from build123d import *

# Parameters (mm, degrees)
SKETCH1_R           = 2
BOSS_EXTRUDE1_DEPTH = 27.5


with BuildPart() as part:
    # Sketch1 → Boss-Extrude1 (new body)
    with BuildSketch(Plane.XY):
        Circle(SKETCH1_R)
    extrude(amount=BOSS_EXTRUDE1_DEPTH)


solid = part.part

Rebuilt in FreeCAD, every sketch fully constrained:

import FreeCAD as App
import Part
import Sketcher
Q = App.Units.Quantity

doc = App.newDocument("Part")
body = doc.addObject("PartDesign::Body", "Body")

sketch1 = body.newObject("Sketcher::SketchObject", "Sketch")
sketch1.AttachmentSupport = (doc.getObject("XY_Plane"), [""])
sketch1.MapMode = "FlatFace"
sketch1.addGeometry(Part.Circle(App.Vector(0, 0, 0), App.Vector(0, 0, 1), 2), False)
sketch1.addConstraint([
    Sketcher.Constraint("Coincident", 0, 3, -1, 1),
    Sketcher.Constraint("Diameter", 0, Q("4 mm")),
])
pad1 = body.newObject("PartDesign::Pad", "Pad")
pad1.Profile = sketch1
pad1.Length = 27.5

doc.recompute()
